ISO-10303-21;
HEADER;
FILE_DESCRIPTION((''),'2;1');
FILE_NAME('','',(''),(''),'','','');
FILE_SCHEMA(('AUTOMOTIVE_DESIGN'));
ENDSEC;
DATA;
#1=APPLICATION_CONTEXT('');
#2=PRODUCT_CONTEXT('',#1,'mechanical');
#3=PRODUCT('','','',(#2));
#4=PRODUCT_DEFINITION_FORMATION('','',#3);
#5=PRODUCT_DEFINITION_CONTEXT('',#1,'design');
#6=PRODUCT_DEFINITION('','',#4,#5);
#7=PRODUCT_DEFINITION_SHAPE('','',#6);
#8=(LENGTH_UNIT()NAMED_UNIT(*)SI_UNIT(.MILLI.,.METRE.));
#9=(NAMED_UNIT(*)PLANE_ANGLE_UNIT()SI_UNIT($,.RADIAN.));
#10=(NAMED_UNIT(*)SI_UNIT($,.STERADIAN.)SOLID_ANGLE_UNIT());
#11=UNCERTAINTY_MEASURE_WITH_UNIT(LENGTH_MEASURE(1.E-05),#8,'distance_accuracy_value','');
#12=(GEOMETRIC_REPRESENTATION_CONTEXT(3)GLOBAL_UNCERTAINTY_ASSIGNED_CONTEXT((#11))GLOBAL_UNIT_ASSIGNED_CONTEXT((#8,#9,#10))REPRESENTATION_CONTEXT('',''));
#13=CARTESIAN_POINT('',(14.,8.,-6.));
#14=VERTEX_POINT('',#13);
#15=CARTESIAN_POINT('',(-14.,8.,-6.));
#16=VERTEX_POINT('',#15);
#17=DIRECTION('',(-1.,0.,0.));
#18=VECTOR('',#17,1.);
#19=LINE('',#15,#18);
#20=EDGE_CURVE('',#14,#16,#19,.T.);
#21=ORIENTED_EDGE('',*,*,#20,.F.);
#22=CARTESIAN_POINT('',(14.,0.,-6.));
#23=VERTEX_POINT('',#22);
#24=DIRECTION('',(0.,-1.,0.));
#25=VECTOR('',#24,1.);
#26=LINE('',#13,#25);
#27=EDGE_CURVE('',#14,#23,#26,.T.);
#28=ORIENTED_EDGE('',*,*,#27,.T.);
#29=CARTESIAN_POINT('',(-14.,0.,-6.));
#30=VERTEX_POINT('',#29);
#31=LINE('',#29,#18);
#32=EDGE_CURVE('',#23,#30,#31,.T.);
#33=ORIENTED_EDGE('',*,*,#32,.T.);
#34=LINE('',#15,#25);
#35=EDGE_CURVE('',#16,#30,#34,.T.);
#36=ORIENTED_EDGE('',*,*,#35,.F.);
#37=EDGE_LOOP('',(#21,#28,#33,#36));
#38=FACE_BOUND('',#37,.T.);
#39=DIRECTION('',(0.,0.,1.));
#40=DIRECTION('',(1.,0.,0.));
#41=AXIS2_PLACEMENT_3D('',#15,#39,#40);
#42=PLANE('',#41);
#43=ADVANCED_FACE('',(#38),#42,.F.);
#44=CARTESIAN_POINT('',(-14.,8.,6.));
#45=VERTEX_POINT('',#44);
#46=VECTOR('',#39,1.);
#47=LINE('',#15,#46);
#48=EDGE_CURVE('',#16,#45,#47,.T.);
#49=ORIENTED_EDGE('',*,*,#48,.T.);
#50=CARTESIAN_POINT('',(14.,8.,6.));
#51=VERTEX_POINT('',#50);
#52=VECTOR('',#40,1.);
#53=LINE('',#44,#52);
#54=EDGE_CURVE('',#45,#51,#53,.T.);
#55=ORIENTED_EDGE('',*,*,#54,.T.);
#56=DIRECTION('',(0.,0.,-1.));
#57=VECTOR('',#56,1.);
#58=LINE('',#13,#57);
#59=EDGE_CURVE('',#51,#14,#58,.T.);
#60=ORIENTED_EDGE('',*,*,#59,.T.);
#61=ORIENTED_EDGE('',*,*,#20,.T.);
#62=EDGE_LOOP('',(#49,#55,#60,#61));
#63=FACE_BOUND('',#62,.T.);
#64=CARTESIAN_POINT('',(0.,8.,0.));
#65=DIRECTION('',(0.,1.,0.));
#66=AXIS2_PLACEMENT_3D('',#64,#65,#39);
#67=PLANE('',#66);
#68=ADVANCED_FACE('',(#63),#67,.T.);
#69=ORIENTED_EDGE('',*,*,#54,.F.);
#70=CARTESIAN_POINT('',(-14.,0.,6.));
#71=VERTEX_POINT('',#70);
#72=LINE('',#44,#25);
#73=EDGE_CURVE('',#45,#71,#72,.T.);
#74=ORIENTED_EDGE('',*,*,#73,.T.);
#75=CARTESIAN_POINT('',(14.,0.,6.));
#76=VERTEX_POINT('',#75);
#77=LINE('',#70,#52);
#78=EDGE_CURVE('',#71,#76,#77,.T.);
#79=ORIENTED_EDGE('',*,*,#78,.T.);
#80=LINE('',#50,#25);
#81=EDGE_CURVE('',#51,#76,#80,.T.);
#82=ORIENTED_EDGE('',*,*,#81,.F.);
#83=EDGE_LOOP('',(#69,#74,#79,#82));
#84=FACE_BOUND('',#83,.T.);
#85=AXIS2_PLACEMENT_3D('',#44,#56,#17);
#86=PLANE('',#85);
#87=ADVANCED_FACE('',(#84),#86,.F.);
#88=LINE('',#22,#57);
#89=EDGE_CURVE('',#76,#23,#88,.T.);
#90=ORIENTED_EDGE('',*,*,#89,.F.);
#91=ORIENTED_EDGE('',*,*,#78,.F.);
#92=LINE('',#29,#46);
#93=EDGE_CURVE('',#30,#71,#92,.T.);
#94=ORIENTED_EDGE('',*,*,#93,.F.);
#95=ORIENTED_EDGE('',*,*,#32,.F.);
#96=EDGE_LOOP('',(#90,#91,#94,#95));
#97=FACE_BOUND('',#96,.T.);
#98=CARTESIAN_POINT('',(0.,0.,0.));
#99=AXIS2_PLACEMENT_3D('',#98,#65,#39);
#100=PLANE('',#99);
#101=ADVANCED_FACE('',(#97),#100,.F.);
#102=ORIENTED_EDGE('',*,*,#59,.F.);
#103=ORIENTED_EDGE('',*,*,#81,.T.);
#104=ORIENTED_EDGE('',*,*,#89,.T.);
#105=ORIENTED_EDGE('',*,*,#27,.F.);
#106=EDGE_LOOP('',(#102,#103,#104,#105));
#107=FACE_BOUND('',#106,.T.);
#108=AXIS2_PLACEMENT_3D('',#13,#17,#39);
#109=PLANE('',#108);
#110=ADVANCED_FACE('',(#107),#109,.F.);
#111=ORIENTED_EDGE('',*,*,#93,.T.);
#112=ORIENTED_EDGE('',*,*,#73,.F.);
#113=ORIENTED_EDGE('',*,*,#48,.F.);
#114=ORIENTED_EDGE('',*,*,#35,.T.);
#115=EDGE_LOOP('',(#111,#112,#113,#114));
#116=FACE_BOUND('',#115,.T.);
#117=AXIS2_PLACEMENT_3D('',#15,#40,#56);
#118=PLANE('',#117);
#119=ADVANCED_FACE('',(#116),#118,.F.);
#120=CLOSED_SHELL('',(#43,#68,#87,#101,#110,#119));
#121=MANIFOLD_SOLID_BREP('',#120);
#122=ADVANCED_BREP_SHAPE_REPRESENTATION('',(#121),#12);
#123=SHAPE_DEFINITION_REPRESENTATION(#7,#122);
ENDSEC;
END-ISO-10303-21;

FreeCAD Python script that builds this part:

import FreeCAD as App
import Part
import Sketcher
from FreeCAD import Vector
Q = App.Units.Quantity


def add_polygon(sketch, points):
    """Adds a closed chain of lines whose ends are joined by coincident constraints."""
    first, n = sketch.GeometryCount, len(points)
    for a, b in zip(points, points[1:] + points[:1]):
        sketch.addGeometry(Part.LineSegment(App.Vector(*a, 0), App.Vector(*b, 0)), False)
    for i in range(n):
        sketch.addConstraint(Sketcher.Constraint("Coincident", first + i, 2, first + (i + 1) % n, 1))

doc = App.newDocument("Part")
params = doc.addObject("Spreadsheet::Sheet", "Params")
for row, (alias, value) in enumerate([
    ("sketch1_width", "28 mm"),
    ("sketch1_height", "12 mm"),
    ("pad1_length", "8 mm"),
], start=1):
    params.set(f"A{row}", alias)
    params.set(f"B{row}", "=" + value)
    params.setAlias(f"B{row}", alias)

body = doc.addObject("PartDesign::Body", "Body")

# Sketch on XZ plane
sketch1 = doc.addObject("Sketcher::SketchObject", "Sketch")
body.addObject(sketch1)
sketch1.AttachmentSupport = (doc.XZ_Plane, [""])
sketch1.MapMode = "FlatFace"
add_polygon(sketch1, [(-14, -6), (-14, 6), (14, 6), (14, -6)])  # lines 0-3
sketch1.addConstraint(Sketcher.Constraint("Vertical", 0))
sketch1.addConstraint(Sketcher.Constraint("Horizontal", 1))
sketch1.addConstraint(Sketcher.Constraint("Vertical", 2))
sketch1.addConstraint(Sketcher.Constraint("Horizontal", 3))
sketch1.addConstraint(Sketcher.Constraint("Symmetric", 0, 2, 2, 2, -1, 1))
sketch1.addConstraint(Sketcher.Constraint("DistanceX", 1, 1, 1, 2, Q("28 mm")))
sketch1.addConstraint(Sketcher.Constraint("DistanceY", 0, 1, 0, 2, Q("12 mm")))
sketch1.setExpression("Constraints[9]", "Params.sketch1_width")
sketch1.setExpression("Constraints[10]", "Params.sketch1_height")
pad1 = doc.addObject("PartDesign::Pad", "Pad")
body.addObject(pad1)
pad1.Profile = sketch1
pad1.setExpression("Length", "Params.pad1_length")
pad1.Reversed = True

doc.recompute()
